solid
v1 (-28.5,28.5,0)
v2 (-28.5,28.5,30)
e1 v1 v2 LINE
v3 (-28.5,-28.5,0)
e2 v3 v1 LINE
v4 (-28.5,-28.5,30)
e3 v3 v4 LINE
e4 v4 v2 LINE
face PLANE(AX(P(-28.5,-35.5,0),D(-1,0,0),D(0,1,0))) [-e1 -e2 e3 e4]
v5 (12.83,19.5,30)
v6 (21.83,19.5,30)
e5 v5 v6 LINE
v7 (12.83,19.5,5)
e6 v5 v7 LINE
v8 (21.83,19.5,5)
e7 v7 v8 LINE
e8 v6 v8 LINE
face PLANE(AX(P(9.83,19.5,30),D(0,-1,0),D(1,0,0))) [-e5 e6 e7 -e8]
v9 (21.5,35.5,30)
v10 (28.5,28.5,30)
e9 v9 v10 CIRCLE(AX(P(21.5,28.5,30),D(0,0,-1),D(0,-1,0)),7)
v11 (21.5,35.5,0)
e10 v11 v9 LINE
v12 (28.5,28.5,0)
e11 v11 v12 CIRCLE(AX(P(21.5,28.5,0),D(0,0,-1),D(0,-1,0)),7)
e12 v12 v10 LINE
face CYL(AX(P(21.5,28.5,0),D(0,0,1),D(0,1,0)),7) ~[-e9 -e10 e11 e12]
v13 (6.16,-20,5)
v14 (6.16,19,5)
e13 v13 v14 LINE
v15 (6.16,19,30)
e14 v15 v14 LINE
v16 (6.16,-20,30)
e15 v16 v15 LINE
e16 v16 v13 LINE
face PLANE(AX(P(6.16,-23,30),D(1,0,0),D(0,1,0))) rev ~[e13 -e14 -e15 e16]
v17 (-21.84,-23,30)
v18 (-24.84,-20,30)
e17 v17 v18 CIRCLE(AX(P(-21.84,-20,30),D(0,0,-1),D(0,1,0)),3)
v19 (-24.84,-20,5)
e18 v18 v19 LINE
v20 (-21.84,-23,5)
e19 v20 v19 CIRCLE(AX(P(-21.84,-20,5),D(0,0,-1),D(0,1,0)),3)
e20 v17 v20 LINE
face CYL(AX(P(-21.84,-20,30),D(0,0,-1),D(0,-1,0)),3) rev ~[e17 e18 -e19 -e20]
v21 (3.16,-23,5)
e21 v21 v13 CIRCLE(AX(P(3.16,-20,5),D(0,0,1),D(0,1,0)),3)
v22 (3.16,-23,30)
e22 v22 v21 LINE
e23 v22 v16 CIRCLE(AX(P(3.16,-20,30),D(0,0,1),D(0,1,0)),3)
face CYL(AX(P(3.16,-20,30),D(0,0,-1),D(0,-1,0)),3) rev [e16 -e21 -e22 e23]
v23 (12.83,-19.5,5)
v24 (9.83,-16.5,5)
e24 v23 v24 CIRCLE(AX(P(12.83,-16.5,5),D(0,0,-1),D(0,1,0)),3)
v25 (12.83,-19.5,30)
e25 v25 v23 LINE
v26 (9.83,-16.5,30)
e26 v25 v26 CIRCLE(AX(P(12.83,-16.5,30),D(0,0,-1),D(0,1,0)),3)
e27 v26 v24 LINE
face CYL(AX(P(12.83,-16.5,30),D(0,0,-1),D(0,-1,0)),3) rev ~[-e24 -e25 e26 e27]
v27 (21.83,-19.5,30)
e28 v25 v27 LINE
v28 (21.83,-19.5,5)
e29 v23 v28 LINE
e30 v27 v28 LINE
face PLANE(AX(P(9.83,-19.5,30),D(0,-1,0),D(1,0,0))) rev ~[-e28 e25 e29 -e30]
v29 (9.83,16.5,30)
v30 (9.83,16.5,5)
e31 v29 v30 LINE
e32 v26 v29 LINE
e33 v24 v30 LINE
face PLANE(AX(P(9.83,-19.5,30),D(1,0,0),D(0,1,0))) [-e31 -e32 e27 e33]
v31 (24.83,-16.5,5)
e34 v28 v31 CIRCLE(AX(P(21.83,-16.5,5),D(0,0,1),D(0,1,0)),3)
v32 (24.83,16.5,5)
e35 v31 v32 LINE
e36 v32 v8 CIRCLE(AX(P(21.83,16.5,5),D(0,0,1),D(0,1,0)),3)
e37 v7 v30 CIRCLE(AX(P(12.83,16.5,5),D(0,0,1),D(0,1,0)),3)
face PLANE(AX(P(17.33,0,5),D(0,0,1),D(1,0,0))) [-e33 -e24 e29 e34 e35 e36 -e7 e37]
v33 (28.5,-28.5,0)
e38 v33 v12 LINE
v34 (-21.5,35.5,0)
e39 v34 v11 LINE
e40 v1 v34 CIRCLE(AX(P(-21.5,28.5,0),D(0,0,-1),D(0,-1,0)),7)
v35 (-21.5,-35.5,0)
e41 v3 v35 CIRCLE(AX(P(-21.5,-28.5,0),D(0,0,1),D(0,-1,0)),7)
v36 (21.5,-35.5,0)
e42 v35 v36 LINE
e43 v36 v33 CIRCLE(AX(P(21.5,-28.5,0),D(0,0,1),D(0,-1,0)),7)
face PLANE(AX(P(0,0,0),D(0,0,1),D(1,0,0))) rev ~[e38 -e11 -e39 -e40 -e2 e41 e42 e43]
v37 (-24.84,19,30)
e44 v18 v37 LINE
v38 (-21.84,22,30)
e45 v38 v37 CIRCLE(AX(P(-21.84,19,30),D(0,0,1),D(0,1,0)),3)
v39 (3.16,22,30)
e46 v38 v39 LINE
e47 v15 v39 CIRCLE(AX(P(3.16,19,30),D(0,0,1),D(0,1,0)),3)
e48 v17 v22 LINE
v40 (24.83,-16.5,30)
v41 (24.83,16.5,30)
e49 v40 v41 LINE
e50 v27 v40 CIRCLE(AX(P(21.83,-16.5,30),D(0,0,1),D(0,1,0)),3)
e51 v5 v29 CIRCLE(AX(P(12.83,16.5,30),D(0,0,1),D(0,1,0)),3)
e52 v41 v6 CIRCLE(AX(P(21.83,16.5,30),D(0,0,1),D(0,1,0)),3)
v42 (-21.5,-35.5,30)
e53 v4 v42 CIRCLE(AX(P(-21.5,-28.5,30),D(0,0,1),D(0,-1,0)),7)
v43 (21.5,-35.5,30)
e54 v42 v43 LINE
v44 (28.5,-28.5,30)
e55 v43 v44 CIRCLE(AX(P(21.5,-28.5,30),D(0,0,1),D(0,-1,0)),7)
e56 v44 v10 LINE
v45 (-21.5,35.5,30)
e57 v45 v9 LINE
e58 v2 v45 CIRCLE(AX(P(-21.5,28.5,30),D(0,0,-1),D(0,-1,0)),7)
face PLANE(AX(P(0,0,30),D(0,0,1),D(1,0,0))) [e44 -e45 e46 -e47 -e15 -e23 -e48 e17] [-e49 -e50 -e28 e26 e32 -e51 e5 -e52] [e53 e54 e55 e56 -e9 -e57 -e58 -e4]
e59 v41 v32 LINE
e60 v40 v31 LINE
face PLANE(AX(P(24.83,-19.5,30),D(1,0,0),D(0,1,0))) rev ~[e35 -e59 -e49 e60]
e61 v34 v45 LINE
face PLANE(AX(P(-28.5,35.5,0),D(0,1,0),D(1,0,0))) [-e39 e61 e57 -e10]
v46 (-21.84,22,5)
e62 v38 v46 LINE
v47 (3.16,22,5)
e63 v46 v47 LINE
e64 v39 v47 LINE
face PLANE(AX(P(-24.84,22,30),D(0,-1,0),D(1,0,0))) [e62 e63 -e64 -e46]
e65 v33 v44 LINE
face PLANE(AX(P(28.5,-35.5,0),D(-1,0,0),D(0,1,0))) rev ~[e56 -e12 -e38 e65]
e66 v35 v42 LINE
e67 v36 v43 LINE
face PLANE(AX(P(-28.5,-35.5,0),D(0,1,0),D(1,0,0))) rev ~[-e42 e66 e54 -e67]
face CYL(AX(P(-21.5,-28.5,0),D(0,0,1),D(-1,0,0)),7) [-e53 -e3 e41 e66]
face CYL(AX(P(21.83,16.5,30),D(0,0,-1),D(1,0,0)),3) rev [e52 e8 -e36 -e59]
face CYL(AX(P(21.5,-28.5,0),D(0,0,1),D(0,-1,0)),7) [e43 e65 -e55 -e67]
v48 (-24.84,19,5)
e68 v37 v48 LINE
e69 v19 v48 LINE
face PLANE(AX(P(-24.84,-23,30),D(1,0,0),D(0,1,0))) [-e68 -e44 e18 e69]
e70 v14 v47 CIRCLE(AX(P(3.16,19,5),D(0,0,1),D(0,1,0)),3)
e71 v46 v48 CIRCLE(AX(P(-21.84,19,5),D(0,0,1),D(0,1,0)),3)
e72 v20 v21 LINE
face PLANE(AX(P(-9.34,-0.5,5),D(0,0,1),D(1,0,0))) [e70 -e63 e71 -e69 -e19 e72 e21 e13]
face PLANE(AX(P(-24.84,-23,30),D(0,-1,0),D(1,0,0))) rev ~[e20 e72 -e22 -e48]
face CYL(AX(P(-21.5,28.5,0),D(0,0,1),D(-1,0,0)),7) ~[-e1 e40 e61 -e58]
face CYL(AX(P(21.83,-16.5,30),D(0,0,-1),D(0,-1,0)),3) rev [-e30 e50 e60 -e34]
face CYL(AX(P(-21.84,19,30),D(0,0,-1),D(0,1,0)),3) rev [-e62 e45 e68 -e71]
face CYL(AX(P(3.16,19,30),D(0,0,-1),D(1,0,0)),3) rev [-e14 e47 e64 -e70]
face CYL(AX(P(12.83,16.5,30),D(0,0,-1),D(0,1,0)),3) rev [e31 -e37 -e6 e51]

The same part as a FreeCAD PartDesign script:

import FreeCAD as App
import Part
import Sketcher

V = App.Vector


def edges_at(feature, points):
    """Names of the edges that pass closest to the given points."""
    edges = feature.Shape.Edges
    near = lambda p: min(range(len(edges)), key=lambda i: edges[i].distToShape(Part.Vertex(*p))[0])
    return sorted({f"Edge{near(p) + 1}" for p in points})

doc = App.newDocument("Part")
body = doc.addObject("PartDesign::Body", "Body")

# Sketch on XY plane
sketch1 = doc.addObject("Sketcher::SketchObject", "Sketch")
body.addObject(sketch1)
sketch1.AttachmentSupport = (doc.XY_Plane, [""])
sketch1.MapMode = "FlatFace"
sketch1.addGeometry(Part.LineSegment(V(-28, 36, 0), V(-28, -36, 0)), False)
sketch1.addGeometry(Part.LineSegment(V(-28, -36, 0), V(28, -36, 0)), False)
sketch1.addGeometry(Part.LineSegment(V(28, -36, 0), V(28, 36, 0)), False)
sketch1.addGeometry(Part.LineSegment(V(28, 36, 0), V(-28, 36, 0)), False)
sketch1.addConstraint(Sketcher.Constraint("Coincident", 0, 2, 1, 1))
sketch1.addConstraint(Sketcher.Constraint("Coincident", 1, 2, 2, 1))
sketch1.addConstraint(Sketcher.Constraint("Coincident", 2, 2, 3, 1))
sketch1.addConstraint(Sketcher.Constraint("Coincident", 3, 2, 0, 1))
sketch1.addConstraint(Sketcher.Constraint("Vertical", 0))
sketch1.addConstraint(Sketcher.Constraint("Horizontal", 1))
sketch1.addConstraint(Sketcher.Constraint("Vertical", 2))
sketch1.addConstraint(Sketcher.Constraint("Horizontal", 3))
sketch1.addConstraint(Sketcher.Constraint("Symmetric", 0, 2, 2, 2, -1, 1))
sketch1.addConstraint(Sketcher.Constraint("DistanceX", 1, 1, 1, 2, 57.0))
sketch1.addConstraint(Sketcher.Constraint("DistanceY", 0, 2, 0, 1, 71.0))
pad1 = doc.addObject("PartDesign::Pad", "Pad")
body.addObject(pad1)
pad1.Profile = sketch1
pad1.Length = 30

# Sketch on XY plane
sketch2 = doc.addObject("Sketcher::SketchObject", "Sketch001")
body.addObject(sketch2)
sketch2.AttachmentSupport = (doc.XY_Plane, [""])
sketch2.MapMode = "FlatFace"
sketch2.AttachmentOffset = App.Placement(V(0, 0, 30), App.Rotation())
sketch2.addGeometry(Part.LineSegment(V(-25, 22, 0), V(-25, -23, 0)), False)
sketch2.addGeometry(Part.LineSegment(V(-25, -23, 0), V(6, -23, 0)), False)
sketch2.addGeometry(Part.LineSegment(V(6, -23, 0), V(6, 22, 0)), False)
sketch2.addGeometry(Part.LineSegment(V(6, 22, 0), V(-25, 22, 0)), False)
sketch2.addGeometry(Part.LineSegment(V(10, 20, 0), V(10, -20, 0)), False)
sketch2.addGeometry(Part.LineSegment(V(10, -20, 0), V(25, -20, 0)), False)
sketch2.addGeometry(Part.LineSegment(V(25, -20, 0), V(25, 20, 0)), False)
sketch2.addGeometry(Part.LineSegment(V(25, 20, 0), V(10, 20, 0)), False)
sketch2.addConstraint(Sketcher.Constraint("Coincident", 0, 2, 1, 1))
sketch2.addConstraint(Sketcher.Constraint("Coincident", 1, 2, 2, 1))
sketch2.addConstraint(Sketcher.Constraint("Coincident", 2, 2, 3, 1))
sketch2.addConstraint(Sketcher.Constraint("Coincident", 3, 2, 0, 1))
sketch2.addConstraint(Sketcher.Constraint("Coincident", 4, 2, 5, 1))
sketch2.addConstraint(Sketcher.Constraint("Coincident", 5, 2, 6, 1))
sketch2.addConstraint(Sketcher.Constraint("Coincident", 6, 2, 7, 1))
sketch2.addConstraint(Sketcher.Constraint("Coincident", 7, 2, 4, 1))
sketch2.addConstraint(Sketcher.Constraint("Vertical", 0))
sketch2.addConstraint(Sketcher.Constraint("Horizontal", 1))
sketch2.addConstraint(Sketcher.Constraint("Vertical", 2))
sketch2.addConstraint(Sketcher.Constraint("Horizontal", 3))
sketch2.addConstraint(Sketcher.Constraint("Vertical", 4))
sketch2.addConstraint(Sketcher.Constraint("Horizontal", 5))
sketch2.addConstraint(Sketcher.Constraint("Vertical", 6))
sketch2.addConstraint(Sketcher.Constraint("Horizontal", 7))
sketch2.addConstraint(Sketcher.Constraint("DistanceX", 1, 1, 1, 2, 31.0))
sketch2.addConstraint(Sketcher.Constraint("DistanceX", 5, 1, 5, 2, 15.0))
sketch2.addConstraint(Sketcher.Constraint("DistanceY", 0, 2, 0, 1, 45.0))
sketch2.addConstraint(Sketcher.Constraint("DistanceY", 4, 2, 4, 1, 39.0))
sketch2.addConstraint(Sketcher.Constraint("DistanceY", 0, 2, -1, 1, 23.0))
sketch2.addConstraint(Sketcher.Constraint("DistanceY", 4, 2, -1, 1, 19.5))
sketch2.addConstraint(Sketcher.Constraint("DistanceX", 0, 2, -1, 1, 24.84))
sketch2.addConstraint(Sketcher.Constraint("DistanceX", -1, 1, 4, 2, 9.83))
pocket1 = doc.addObject("PartDesign::Pocket", "Pocket")
body.addObject(pocket1)
pocket1.Profile = sketch2
pocket1.Length = 25
doc.recompute()

fillet = doc.addObject("PartDesign::Fillet", "Fillet")
body.addObject(fillet)
fillet.Base = (pocket1, edges_at(pocket1, [
    (28.5, 35.5, 15),
    (28.5, -35.5, 15),
    (-28.5, -35.5, 15),
    (-28.5, 35.5, 15),
]))
fillet.Radius = 7
doc.recompute()

fillet2 = doc.addObject("PartDesign::Fillet", "Fillet001")
body.addObject(fillet2)
fillet2.Base = (fillet, edges_at(fillet, [
    (24.83, 19.5, 17.5),
    (24.83, -19.5, 17.5),
    (6.16, -23, 17.5),
    (6.16, 22, 17.5),
    (-24.84, 22, 17.5),
    (9.83, 19.5, 17.5),
    (-24.84, -23, 17.5),
    (9.83, -19.5, 17.5),
]))
fillet2.Radius = 3

doc.recompute()
